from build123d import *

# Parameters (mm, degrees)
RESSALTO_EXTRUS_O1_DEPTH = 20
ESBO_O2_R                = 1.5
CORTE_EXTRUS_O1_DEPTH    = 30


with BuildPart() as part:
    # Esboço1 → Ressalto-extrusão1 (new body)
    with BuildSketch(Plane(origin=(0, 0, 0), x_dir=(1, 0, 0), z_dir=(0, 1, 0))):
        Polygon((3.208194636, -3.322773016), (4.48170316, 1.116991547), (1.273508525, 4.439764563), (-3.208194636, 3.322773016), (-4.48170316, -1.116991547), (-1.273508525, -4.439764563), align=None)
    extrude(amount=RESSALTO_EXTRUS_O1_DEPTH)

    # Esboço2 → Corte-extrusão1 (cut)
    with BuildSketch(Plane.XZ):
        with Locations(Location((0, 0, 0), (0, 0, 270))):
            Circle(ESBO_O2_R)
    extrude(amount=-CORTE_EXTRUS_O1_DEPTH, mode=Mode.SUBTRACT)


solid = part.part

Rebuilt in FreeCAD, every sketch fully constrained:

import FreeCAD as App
import Part
import Sketcher
Q = App.Units.Quantity

doc = App.newDocument("Part")
body = doc.addObject("PartDesign::Body", "Body")

# Sketch on XZ plane
sketch1 = doc.addObject("Sketcher::SketchObject", "Sketch")
body.addObject(sketch1)
sketch1.AttachmentSupport = (doc.XZ_Plane, [""])
sketch1.MapMode = "FlatFace"
sketch1.addGeometry([
    Part.LineSegment(App.Vector(3.2, 3.3, 0), App.Vector(4.5, -1.1, 0)),  # 0
    Part.LineSegment(App.Vector(4.5, -1.1, 0), App.Vector(1.3, -4.4, 0)),  # 1
    Part.LineSegment(App.Vector(1.3, -4.4, 0), App.Vector(-3.2, -3.3, 0)),  # 2
    Part.LineSegment(App.Vector(-3.2, -3.3, 0), App.Vector(-4.5, 1.1, 0)),  # 3
    Part.LineSegment(App.Vector(-4.5, 1.1, 0), App.Vector(-1.3, 4.4, 0)),  # 4
    Part.LineSegment(App.Vector(-1.3, 4.4, 0), App.Vector(3.2, 3.3, 0)),  # 5
], False)
sketch1.addConstraint([
    Sketcher.Constraint("Coincident", 0, 2, 1, 1),
    Sketcher.Constraint("Coincident", 1, 2, 2, 1),
    Sketcher.Constraint("Coincident", 2, 2, 3, 1),
    Sketcher.Constraint("Coincident", 3, 2, 4, 1),
    Sketcher.Constraint("Coincident", 4, 2, 5, 1),
    Sketcher.Constraint("Coincident", 5, 2, 0, 1),
    Sketcher.Constraint("Symmetric", 0, 2, 3, 2, -1, 1),
    Sketcher.Constraint("Symmetric", 1, 2, 4, 2, -1, 1),
    Sketcher.Constraint("Symmetric", 2, 2, 5, 2, -1, 1),
    Sketcher.Constraint("Equal", 0, 1),
    Sketcher.Constraint("Equal", 1, 2),
    Sketcher.Constraint("DistanceY", 0, 2, -1, 1, Q("1.116992 mm")),
    Sketcher.Constraint("DistanceX", -1, 1, 1, 2, Q("1.273509 mm")),
    Sketcher.Constraint("DistanceY", 1, 2, 2, 2, Q("1.116992 mm")),
    Sketcher.Constraint("DistanceY", 2, 2, 0, 2, Q("2.205781 mm")),
])
pad1 = doc.addObject("PartDesign::Pad", "Pad")
body.addObject(pad1)
pad1.Profile = sketch1
pad1.Length = 20
pad1.Reversed = True

# Sketch on XZ plane
sketch2 = doc.addObject("Sketcher::SketchObject", "Sketch001")
body.addObject(sketch2)
sketch2.AttachmentSupport = (doc.XZ_Plane, [""])
sketch2.MapMode = "FlatFace"
sketch2.addGeometry(Part.Circle(App.Vector(0, 0, 0), App.Vector(0, 0, 1), 1.5), False)
sketch2.addConstraint([
    Sketcher.Constraint("Coincident", 0, 3, -1, 1),
    Sketcher.Constraint("Diameter", 0, Q("3 mm")),
])
pocket1 = doc.addObject("PartDesign::Pocket", "Pocket")
body.addObject(pocket1)
pocket1.Profile = sketch2
pocket1.Length = 30

doc.recompute()
